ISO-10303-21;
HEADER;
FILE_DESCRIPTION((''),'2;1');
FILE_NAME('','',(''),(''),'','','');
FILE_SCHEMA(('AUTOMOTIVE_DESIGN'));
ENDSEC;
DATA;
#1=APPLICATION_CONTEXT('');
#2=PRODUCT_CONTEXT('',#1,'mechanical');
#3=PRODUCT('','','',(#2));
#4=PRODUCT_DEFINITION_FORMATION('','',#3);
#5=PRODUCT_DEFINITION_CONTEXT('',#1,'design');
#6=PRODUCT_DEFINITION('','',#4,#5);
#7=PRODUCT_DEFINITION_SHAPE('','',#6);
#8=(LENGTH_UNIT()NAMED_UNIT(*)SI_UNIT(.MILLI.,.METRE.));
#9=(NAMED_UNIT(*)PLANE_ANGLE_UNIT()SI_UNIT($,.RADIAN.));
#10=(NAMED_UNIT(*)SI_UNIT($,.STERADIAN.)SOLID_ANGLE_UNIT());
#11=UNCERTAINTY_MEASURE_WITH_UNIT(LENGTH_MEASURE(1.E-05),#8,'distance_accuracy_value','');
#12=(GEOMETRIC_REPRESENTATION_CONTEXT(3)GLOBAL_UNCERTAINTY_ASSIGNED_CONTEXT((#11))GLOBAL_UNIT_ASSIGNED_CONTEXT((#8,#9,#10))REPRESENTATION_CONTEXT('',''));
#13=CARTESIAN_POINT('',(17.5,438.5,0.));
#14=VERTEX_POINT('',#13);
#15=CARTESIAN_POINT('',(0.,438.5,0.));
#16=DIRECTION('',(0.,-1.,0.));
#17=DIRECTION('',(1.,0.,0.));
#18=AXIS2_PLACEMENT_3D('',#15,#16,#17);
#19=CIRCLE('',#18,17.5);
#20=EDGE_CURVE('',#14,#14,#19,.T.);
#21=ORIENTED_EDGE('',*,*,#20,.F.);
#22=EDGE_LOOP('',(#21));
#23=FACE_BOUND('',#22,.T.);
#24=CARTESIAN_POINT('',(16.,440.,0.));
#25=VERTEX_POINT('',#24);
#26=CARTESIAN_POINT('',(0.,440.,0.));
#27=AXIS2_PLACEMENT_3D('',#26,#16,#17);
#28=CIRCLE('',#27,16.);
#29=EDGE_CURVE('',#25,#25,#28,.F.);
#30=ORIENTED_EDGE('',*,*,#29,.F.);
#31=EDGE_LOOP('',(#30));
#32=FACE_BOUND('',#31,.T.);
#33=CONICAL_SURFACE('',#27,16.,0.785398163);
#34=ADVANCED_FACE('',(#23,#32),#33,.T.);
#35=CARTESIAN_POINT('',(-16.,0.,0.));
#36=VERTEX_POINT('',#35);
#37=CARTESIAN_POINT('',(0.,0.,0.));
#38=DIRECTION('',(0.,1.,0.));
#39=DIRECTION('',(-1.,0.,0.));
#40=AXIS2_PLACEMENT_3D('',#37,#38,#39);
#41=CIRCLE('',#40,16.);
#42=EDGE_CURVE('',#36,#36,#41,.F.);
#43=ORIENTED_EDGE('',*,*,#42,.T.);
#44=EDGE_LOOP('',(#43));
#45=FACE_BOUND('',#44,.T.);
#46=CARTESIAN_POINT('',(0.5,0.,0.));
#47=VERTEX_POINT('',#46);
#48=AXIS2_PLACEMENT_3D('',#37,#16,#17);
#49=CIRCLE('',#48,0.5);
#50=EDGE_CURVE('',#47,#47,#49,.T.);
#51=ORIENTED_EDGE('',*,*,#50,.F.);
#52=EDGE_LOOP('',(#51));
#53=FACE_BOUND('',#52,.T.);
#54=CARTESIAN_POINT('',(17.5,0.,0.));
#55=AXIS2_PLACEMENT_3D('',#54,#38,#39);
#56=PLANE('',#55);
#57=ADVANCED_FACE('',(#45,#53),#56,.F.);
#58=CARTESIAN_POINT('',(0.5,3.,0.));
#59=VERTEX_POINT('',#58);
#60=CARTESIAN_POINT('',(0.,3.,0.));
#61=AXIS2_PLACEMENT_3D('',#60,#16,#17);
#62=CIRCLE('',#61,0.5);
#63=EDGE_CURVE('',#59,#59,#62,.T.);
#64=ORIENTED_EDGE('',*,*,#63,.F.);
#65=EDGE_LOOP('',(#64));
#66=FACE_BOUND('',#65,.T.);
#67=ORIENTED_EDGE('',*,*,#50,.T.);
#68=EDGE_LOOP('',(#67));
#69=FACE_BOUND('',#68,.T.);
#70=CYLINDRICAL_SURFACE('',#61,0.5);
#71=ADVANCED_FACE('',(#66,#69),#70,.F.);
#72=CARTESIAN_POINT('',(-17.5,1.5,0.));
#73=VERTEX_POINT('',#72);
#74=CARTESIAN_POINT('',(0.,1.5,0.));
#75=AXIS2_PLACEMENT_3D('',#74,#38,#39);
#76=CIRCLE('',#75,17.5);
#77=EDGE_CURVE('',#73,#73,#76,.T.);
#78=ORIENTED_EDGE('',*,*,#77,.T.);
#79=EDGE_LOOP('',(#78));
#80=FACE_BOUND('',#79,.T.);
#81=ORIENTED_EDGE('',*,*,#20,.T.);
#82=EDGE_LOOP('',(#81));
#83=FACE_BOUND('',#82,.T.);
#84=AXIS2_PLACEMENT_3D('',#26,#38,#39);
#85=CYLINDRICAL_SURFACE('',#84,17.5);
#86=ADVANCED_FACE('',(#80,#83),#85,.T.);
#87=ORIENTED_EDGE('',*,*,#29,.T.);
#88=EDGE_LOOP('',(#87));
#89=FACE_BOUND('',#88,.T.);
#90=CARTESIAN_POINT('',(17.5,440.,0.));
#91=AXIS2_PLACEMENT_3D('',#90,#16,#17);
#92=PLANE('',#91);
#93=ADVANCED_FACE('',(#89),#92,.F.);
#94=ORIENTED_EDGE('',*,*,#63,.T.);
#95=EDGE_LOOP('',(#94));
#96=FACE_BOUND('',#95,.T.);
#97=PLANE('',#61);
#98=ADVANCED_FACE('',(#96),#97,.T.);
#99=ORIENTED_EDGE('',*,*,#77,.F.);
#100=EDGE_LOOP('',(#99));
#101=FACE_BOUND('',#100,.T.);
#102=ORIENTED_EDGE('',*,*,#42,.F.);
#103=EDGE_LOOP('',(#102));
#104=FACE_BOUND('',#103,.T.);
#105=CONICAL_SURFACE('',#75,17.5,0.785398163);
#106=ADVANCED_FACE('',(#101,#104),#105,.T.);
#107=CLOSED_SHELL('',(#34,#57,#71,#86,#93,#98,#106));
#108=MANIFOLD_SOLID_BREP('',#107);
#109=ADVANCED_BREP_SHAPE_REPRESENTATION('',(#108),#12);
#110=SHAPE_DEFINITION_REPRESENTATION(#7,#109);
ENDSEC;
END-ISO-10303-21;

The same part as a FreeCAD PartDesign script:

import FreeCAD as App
import Part
import Sketcher
Q = App.Units.Quantity


def edges_at(feature, points):
    """Names of the edges that pass closest to the given points."""
    edges = feature.Shape.Edges
    near = lambda p: min(range(len(edges)), key=lambda i: edges[i].distToShape(Part.Vertex(*p))[0])
    return sorted({f"Edge{near(p) + 1}" for p in points})


def add_polygon(sketch, points):
    """Adds a closed chain of lines whose ends are joined by coincident constraints."""
    first, n = sketch.GeometryCount, len(points)
    for a, b in zip(points, points[1:] + points[:1]):
        sketch.addGeometry(Part.LineSegment(App.Vector(*a, 0), App.Vector(*b, 0)), False)
    for i in range(n):
        sketch.addConstraint(Sketcher.Constraint("Coincident", first + i, 2, first + (i + 1) % n, 1))

doc = App.newDocument("Part")
body = doc.addObject("PartDesign::Body", "Body")

sketch1 = body.newObject("Sketcher::SketchObject", "Sketch")
sketch1.AttachmentSupport = (doc.getObject("XY_Plane"), [""])
sketch1.MapMode = "FlatFace"
add_polygon(sketch1, [(0, 440), (0, 0), (18, 0), (18, 440)])
sketch1.addConstraint(Sketcher.Constraint("Vertical", 0))
sketch1.addConstraint(Sketcher.Constraint("Horizontal", 1))
sketch1.addConstraint(Sketcher.Constraint("Vertical", 2))
sketch1.addConstraint(Sketcher.Constraint("Horizontal", 3))
sketch1.addConstraint(Sketcher.Constraint("Coincident", 0, 2, -1, 1))
sketch1.addConstraint(Sketcher.Constraint("DistanceY", 0, 2, 0, 1, Q("440 mm")))
sketch1.addConstraint(Sketcher.Constraint("DistanceX", 1, 1, 1, 2, Q("17.5 mm")))
revolution = body.newObject("PartDesign::Revolution", "Revolution")
revolution.Profile = sketch1
revolution.ReferenceAxis = (sketch1, ["V_Axis"])
revolution.Angle = 360
doc.recompute()

chamfer = body.newObject("PartDesign::Chamfer", "Chamfer")
chamfer.Base = (revolution, edges_at(revolution, [(17.5, 0, 0), (17.5, 440, 0)]))
chamfer.Size = 1.5

sketch2 = body.newObject("Sketcher::SketchObject", "Sketch001")
sketch2.AttachmentSupport = (doc.getObject("XZ_Plane"), [""])
sketch2.MapMode = "FlatFace"
sketch2.addGeometry(Part.Circle(App.Vector(0, 0, 0), App.Vector(0, 0, 1), 0.5), False)
sketch2.addConstraint(Sketcher.Constraint("Coincident", 0, 3, -1, 1))
sketch2.addConstraint(Sketcher.Constraint("Diameter", 0, Q("1 mm")))
pocket1 = body.newObject("PartDesign::Pocket", "Pocket")
pocket1.Profile = sketch2
pocket1.Length = 3

doc.recompute()
